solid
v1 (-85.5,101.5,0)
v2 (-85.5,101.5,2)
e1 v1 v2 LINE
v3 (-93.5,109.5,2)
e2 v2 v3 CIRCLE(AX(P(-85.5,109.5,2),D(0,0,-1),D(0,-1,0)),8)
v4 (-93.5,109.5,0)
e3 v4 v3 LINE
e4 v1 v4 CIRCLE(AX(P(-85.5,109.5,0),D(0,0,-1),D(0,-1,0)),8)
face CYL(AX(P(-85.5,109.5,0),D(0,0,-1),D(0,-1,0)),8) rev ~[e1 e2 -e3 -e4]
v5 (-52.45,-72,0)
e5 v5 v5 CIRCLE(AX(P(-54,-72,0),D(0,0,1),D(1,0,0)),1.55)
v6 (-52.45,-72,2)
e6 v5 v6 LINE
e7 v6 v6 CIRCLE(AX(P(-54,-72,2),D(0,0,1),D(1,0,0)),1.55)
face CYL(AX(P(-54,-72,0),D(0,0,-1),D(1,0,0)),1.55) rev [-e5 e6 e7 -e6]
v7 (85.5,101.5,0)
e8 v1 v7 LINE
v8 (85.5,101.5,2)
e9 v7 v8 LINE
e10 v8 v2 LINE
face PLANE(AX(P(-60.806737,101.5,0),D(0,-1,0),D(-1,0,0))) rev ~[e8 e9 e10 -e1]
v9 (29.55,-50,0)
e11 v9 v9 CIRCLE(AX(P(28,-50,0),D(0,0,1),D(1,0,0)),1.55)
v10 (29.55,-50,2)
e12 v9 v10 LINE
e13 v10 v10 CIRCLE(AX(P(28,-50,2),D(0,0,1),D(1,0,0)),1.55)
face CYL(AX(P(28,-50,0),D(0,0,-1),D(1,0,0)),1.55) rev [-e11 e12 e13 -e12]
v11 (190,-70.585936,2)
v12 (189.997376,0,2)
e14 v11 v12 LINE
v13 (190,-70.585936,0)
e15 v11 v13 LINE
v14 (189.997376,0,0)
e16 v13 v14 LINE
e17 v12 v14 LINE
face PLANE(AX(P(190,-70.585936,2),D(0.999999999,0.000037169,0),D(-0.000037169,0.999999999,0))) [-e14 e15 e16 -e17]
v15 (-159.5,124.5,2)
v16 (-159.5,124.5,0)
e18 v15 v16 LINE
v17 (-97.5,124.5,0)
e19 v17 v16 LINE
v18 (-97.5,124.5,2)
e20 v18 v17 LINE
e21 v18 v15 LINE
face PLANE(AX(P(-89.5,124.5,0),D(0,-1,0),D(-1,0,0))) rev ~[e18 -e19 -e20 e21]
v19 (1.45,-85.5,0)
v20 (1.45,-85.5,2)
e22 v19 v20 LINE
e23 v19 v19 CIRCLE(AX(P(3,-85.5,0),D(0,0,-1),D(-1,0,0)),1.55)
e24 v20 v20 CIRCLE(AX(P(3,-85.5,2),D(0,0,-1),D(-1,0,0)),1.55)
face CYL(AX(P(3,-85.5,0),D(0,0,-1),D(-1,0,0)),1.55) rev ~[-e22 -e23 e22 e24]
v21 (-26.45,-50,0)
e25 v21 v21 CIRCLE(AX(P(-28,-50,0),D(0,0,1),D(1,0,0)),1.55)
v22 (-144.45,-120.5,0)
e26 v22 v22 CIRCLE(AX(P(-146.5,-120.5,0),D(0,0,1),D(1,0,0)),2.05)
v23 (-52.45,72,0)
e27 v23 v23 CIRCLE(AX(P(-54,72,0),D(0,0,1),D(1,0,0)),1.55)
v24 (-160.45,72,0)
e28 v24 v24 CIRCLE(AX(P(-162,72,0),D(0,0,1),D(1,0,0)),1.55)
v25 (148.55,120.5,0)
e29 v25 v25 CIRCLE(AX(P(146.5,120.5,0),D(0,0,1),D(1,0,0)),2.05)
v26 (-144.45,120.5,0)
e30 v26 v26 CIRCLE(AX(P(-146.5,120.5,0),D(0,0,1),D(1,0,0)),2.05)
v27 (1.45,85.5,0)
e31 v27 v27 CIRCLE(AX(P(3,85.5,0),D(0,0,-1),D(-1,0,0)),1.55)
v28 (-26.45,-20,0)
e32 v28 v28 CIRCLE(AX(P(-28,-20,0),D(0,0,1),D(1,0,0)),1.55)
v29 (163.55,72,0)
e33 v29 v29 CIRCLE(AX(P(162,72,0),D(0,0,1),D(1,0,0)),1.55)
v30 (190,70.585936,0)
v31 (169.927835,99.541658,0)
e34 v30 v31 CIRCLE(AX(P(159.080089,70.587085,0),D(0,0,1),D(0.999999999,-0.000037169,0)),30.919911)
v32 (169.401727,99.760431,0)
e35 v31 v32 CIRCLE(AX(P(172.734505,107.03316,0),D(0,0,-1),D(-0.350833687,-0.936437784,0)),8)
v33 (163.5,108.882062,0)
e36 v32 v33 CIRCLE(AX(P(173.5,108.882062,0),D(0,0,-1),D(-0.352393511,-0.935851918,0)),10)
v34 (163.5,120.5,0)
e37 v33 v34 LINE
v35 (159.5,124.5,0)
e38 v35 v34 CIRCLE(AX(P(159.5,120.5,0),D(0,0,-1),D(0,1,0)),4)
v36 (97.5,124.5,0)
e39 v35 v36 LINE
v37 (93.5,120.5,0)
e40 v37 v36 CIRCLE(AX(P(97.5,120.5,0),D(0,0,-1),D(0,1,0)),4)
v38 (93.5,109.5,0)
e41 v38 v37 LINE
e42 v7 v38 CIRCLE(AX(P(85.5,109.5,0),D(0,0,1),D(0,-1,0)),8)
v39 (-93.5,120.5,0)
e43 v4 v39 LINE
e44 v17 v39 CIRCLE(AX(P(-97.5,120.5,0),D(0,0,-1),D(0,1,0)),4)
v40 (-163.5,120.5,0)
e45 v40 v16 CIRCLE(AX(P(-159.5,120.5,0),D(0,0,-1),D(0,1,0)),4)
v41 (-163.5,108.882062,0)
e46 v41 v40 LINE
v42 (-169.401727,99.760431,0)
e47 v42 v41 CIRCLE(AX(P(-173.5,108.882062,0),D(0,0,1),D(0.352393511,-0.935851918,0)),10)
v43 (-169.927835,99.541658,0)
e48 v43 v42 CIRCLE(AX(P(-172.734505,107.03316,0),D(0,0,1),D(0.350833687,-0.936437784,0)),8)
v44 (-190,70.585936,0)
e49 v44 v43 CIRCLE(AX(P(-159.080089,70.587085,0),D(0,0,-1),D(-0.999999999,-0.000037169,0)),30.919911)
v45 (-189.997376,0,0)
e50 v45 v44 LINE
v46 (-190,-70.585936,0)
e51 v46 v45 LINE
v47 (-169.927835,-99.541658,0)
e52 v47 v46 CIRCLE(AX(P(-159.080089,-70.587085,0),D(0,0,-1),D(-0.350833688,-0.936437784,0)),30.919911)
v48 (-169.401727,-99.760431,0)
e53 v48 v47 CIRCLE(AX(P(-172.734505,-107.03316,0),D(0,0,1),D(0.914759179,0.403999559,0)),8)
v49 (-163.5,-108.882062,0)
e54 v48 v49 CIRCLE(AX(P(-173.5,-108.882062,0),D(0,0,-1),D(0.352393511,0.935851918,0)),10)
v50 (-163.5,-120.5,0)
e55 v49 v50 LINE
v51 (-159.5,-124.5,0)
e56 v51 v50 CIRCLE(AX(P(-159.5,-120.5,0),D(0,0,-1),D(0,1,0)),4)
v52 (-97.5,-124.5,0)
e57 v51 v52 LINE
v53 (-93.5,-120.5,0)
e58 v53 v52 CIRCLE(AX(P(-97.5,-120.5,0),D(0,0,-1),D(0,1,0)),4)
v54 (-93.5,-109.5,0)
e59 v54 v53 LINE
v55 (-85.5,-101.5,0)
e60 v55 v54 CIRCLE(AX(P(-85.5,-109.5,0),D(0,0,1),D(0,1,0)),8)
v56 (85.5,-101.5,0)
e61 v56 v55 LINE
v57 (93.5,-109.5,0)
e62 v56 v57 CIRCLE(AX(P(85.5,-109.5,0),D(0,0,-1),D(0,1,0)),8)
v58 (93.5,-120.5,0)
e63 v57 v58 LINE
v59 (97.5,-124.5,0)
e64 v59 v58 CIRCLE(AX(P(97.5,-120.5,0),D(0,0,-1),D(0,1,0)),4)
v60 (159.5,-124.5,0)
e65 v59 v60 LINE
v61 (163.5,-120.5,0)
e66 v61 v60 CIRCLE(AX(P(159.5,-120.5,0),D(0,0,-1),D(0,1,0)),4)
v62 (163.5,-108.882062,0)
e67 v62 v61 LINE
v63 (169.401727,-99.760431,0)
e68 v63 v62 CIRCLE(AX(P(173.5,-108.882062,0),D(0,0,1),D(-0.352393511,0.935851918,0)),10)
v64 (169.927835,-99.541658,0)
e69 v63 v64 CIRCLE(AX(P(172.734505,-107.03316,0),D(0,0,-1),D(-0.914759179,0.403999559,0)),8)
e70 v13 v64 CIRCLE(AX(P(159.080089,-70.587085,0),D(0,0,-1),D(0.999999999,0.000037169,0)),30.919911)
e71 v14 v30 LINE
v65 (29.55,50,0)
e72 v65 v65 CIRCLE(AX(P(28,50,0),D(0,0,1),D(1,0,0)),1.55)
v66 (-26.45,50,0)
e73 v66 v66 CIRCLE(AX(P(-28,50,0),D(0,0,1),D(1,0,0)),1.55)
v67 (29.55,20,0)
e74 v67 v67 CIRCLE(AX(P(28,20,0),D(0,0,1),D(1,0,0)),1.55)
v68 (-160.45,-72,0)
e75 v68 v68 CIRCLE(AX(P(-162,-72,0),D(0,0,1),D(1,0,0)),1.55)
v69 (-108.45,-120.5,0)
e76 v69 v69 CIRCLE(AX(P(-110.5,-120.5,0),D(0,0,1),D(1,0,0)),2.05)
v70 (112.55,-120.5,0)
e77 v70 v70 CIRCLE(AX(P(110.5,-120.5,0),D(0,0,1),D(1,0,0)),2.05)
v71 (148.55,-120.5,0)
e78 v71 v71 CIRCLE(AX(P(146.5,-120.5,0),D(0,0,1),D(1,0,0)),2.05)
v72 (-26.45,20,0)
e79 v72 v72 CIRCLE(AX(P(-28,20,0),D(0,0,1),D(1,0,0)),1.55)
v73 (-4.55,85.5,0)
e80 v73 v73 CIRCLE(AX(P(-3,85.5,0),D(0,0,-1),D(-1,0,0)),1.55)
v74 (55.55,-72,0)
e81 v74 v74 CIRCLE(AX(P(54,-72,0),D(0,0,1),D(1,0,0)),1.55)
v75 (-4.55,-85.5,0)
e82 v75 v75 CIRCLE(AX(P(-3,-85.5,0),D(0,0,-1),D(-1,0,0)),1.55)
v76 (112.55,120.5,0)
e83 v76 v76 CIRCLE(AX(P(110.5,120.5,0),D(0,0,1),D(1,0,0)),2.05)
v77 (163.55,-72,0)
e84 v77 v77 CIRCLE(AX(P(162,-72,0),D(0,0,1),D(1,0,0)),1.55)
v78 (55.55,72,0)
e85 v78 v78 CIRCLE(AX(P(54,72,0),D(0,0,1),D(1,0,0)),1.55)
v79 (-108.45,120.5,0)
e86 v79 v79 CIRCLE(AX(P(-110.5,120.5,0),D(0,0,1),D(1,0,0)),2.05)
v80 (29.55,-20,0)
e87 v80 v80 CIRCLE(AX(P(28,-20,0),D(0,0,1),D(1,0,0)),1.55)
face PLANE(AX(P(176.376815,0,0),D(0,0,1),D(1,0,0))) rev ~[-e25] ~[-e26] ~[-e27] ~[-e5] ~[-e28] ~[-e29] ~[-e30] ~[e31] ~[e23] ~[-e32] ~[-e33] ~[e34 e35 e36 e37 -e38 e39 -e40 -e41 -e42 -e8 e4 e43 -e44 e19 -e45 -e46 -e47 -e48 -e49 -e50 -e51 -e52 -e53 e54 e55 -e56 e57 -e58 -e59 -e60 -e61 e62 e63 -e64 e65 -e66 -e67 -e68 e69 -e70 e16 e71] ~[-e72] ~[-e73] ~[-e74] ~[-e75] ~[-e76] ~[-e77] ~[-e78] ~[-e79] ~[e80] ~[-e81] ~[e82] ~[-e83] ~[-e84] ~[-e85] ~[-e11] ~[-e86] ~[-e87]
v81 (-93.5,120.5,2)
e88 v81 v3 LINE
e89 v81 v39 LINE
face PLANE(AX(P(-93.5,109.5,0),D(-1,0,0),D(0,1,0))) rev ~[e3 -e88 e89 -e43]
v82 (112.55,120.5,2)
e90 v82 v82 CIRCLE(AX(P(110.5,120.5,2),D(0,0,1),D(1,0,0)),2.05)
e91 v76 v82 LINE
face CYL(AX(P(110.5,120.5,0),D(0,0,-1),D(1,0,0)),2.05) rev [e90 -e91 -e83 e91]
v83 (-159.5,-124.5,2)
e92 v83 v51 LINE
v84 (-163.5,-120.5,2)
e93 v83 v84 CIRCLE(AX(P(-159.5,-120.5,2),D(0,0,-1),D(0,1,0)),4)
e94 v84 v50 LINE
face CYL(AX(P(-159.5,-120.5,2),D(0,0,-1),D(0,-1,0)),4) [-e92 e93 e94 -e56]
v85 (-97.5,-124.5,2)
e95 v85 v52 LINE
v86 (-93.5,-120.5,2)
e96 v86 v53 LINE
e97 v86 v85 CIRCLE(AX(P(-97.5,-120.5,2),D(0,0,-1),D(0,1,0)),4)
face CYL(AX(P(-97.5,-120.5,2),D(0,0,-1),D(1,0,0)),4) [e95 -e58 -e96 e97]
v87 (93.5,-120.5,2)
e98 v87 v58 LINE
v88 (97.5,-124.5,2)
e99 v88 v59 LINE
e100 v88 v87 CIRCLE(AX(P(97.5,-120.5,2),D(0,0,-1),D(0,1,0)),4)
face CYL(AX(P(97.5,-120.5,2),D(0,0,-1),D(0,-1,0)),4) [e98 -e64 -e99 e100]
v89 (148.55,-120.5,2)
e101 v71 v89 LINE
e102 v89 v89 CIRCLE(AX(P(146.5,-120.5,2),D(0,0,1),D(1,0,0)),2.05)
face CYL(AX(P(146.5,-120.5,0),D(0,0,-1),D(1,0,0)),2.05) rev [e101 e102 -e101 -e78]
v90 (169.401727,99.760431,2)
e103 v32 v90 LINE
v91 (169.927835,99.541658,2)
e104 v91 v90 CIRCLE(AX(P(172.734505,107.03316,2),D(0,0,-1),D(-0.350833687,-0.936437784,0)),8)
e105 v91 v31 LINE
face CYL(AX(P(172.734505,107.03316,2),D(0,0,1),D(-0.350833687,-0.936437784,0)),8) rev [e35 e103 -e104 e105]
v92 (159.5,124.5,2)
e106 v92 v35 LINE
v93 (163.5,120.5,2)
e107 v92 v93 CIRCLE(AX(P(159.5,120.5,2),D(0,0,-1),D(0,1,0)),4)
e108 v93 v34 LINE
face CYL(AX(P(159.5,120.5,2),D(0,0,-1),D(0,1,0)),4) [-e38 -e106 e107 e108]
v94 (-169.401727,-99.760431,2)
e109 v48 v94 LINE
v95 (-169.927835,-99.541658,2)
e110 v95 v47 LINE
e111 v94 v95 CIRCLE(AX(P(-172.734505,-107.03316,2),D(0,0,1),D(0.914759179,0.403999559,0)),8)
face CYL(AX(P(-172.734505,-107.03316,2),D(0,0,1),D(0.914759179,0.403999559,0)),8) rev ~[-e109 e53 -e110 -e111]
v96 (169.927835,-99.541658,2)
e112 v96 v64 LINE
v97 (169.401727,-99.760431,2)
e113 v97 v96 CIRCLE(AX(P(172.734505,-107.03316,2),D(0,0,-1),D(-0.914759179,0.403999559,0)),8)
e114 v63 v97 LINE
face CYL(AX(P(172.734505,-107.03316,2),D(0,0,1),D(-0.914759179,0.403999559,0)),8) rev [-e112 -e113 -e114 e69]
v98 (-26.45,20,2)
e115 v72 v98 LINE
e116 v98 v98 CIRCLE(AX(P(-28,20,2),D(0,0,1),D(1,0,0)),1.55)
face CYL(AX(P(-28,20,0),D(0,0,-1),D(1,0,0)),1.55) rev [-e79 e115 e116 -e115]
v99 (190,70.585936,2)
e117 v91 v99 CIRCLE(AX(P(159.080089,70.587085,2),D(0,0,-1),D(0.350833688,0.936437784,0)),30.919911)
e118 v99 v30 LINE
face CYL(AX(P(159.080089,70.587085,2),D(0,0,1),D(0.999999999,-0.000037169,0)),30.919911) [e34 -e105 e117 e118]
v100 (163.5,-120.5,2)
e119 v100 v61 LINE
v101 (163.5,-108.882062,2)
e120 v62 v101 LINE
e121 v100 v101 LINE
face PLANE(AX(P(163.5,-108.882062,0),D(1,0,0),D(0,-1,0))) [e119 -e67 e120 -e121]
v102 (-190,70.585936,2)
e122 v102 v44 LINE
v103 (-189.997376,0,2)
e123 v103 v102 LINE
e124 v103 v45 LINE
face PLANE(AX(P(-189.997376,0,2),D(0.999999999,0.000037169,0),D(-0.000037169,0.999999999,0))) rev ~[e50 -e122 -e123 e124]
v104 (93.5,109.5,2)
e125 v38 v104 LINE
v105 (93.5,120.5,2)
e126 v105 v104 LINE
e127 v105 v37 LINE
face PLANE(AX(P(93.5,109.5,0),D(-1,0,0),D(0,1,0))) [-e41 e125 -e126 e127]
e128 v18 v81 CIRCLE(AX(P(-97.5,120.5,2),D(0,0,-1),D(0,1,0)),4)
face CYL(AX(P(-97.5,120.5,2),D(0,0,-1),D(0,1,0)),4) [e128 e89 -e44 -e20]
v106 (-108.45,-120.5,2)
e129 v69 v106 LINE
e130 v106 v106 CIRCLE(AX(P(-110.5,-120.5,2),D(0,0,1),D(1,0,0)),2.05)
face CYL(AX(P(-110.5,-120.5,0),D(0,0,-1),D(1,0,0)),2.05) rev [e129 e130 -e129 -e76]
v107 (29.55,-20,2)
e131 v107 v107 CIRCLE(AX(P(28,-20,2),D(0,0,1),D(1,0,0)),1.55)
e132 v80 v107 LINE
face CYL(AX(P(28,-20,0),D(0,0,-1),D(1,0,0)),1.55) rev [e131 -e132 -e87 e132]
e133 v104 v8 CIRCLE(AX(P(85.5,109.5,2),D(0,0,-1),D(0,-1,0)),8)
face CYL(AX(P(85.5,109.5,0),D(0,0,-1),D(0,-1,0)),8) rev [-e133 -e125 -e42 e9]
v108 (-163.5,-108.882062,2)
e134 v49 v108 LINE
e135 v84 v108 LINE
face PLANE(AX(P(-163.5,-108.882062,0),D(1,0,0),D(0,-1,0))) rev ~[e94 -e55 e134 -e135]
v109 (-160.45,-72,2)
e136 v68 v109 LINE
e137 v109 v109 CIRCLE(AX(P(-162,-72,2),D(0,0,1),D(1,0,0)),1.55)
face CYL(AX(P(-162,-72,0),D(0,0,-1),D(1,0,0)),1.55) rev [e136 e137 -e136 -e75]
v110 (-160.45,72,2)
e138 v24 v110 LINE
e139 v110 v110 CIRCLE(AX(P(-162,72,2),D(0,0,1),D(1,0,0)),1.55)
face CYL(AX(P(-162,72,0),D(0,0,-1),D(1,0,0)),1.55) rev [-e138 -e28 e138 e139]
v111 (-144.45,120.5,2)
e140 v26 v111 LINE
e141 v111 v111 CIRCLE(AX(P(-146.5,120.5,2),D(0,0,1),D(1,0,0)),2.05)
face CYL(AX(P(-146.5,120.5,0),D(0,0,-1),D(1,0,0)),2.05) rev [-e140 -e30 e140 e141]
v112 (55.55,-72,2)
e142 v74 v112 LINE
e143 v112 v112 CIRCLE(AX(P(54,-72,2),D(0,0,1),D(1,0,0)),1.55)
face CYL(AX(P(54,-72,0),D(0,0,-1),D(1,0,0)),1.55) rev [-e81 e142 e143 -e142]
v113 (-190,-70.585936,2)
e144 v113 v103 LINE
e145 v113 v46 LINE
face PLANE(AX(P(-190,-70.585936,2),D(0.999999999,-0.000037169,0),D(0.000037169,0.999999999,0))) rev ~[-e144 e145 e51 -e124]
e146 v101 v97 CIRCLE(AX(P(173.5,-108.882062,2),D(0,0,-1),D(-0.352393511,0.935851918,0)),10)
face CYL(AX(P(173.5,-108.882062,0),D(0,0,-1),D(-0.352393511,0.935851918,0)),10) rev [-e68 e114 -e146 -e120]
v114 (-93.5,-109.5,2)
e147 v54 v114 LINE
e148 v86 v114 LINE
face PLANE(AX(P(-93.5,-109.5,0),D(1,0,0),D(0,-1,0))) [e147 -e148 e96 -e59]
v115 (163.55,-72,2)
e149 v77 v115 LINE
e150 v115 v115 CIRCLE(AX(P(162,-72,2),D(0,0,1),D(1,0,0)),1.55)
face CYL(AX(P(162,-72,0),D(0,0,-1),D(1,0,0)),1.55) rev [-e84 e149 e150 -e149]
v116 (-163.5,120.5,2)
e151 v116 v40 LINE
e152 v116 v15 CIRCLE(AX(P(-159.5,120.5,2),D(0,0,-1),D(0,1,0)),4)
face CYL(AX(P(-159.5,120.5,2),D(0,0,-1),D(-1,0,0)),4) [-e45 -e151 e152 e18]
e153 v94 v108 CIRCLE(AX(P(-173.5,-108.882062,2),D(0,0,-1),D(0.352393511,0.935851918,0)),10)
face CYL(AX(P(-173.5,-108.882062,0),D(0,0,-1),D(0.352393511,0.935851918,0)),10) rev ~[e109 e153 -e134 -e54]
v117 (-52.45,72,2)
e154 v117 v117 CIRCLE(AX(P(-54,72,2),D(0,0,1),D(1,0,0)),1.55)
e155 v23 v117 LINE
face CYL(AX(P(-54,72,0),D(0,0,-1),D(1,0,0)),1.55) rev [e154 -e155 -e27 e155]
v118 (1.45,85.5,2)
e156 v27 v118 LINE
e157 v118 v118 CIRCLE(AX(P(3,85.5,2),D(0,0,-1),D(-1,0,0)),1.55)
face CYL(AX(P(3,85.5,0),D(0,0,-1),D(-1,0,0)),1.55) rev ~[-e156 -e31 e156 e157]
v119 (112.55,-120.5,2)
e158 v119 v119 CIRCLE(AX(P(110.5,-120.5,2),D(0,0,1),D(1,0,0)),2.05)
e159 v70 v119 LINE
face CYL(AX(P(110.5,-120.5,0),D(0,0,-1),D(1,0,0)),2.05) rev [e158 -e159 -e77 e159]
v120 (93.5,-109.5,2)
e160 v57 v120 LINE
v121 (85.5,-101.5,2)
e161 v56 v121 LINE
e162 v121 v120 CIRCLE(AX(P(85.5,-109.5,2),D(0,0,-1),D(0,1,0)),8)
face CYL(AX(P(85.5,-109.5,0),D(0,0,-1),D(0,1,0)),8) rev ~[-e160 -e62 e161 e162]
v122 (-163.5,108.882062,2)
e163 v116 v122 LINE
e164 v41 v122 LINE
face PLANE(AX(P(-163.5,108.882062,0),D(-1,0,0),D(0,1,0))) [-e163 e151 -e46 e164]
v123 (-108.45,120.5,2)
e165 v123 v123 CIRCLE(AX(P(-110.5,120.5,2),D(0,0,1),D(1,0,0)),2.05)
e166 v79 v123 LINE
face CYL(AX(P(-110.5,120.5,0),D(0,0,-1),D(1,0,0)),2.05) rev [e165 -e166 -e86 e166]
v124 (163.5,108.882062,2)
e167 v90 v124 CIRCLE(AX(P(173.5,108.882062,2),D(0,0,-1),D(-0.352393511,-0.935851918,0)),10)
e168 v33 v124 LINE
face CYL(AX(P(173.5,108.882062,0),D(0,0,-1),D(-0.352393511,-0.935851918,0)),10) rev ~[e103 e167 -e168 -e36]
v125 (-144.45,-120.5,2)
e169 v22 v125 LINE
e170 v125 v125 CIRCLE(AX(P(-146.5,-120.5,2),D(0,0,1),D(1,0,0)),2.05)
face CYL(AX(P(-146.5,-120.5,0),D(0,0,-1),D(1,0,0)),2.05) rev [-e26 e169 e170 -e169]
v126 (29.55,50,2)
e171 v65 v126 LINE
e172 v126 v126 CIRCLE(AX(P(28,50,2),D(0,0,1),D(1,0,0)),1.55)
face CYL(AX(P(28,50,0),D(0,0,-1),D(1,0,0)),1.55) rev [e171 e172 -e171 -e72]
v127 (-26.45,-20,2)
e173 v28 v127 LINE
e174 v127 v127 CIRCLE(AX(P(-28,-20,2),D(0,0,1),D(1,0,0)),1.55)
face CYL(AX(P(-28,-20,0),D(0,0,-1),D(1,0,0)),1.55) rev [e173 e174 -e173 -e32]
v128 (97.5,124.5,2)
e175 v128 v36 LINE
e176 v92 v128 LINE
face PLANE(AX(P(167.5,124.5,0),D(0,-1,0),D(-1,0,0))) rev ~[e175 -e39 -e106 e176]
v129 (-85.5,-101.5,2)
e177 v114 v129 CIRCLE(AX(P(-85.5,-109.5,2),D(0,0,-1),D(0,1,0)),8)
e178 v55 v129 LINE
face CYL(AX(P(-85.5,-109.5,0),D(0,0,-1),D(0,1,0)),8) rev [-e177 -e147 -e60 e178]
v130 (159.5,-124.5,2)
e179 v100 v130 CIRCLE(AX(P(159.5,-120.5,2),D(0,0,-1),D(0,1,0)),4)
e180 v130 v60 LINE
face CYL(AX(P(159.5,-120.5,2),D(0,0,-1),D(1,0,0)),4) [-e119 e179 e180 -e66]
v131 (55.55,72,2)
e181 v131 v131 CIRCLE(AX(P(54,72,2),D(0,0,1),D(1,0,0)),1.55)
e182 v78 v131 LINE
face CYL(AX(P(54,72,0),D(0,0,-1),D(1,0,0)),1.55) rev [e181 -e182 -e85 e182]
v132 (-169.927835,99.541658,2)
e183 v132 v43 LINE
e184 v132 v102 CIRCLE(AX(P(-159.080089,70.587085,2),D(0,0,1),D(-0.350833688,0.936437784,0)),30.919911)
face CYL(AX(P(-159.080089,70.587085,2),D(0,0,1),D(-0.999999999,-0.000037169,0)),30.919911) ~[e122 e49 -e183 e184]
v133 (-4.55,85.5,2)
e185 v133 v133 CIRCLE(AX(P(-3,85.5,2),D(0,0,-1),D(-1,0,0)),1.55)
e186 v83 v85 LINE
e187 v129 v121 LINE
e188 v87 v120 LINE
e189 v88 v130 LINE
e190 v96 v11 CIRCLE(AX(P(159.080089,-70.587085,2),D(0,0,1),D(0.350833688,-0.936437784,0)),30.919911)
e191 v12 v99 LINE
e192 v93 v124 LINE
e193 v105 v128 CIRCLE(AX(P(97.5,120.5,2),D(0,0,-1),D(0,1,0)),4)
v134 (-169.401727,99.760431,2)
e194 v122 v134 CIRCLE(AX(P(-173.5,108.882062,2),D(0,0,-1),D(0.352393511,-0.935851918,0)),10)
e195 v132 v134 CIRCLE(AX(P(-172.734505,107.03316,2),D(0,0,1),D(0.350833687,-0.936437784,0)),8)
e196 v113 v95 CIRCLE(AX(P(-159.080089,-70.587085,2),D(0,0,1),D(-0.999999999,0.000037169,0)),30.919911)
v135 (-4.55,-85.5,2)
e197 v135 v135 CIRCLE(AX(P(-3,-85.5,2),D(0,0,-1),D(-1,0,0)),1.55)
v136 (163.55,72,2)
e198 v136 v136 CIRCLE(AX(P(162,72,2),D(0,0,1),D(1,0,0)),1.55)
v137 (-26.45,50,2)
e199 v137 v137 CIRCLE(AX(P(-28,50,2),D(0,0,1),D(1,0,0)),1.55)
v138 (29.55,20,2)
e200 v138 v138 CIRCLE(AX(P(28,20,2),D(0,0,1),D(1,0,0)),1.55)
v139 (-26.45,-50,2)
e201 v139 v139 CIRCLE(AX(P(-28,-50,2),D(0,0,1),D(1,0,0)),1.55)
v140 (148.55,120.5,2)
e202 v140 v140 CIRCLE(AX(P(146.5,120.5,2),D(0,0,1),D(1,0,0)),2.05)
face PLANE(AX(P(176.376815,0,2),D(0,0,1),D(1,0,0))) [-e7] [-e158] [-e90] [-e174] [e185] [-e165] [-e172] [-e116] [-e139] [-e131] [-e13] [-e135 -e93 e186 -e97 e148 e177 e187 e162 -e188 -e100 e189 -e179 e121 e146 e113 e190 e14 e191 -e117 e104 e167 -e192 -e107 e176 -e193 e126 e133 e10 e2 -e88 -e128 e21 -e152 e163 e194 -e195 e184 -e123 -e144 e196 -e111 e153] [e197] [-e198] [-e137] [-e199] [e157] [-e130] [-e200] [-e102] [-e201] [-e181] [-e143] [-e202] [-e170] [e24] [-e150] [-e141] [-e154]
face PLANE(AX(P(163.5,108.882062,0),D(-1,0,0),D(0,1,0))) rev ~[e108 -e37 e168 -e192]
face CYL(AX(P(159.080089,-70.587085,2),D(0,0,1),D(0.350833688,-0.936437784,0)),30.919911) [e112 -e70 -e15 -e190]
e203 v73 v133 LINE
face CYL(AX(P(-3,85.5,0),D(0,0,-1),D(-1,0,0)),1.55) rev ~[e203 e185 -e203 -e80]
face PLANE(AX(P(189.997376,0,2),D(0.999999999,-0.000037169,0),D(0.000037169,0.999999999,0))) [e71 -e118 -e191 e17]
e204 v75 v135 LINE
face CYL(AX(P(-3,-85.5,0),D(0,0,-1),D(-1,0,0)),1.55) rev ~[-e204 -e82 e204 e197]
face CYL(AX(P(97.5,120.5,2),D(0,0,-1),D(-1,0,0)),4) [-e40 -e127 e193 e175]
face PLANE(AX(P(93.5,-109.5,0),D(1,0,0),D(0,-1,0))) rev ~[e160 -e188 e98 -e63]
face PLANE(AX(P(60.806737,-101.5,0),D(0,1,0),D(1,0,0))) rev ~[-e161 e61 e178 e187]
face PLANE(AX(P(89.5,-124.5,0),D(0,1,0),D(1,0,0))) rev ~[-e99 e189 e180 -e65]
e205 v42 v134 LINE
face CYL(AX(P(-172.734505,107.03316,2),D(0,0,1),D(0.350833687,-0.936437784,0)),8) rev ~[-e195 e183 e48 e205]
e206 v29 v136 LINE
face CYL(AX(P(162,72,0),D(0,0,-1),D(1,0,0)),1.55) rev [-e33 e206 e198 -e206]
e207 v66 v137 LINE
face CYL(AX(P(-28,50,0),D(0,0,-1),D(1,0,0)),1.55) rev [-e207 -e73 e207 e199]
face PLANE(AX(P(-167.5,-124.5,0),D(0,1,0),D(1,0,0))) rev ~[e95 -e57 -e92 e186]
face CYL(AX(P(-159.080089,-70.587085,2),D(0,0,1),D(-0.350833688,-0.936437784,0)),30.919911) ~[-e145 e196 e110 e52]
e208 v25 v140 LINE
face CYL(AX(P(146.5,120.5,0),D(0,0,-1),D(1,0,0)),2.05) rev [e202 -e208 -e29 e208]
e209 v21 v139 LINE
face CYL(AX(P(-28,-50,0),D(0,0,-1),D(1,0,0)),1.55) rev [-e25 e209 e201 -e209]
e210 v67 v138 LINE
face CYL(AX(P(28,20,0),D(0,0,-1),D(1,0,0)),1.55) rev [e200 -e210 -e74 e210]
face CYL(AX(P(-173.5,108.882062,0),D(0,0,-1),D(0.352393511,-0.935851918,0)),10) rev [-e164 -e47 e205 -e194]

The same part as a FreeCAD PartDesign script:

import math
import FreeCAD as App
import Part
import Sketcher
from FreeCAD import Vector


def edges_at(feature, points):
    """Names of the edges that pass closest to the given points."""
    edges = feature.Shape.Edges
    near = lambda p: min(range(len(edges)), key=lambda i: edges[i].distToShape(Part.Vertex(*p))[0])
    return sorted({f"Edge{near(p) + 1}" for p in points})

doc = App.newDocument("Part")
body = doc.addObject("PartDesign::Body", "Body")

# Sketch on XY plane
sketch1 = body.newObject("Sketcher::SketchObject", "Sketch")
sketch1.AttachmentSupport = (doc.getObject("XY_Plane"), [""])
sketch1.MapMode = "FlatFace"
sketch1.addGeometry([
    Part.LineSegment(Vector(-89.5, -124.5, 0), Vector(-89.5, -101.5, 0)),  # 0
    Part.LineSegment(Vector(-89.5, -101.5, 0), Vector(89.5, -101.5, 0)),  # 1
    Part.LineSegment(Vector(89.5, -101.5, 0), Vector(89.5, -124.5, 0)),  # 2
    Part.LineSegment(Vector(89.5, -124.5, 0), Vector(167.5, -124.5, 0)),  # 3
    Part.LineSegment(Vector(167.5, -124.5, 0), Vector(167.5, 124.5, 0)),  # 4
    Part.LineSegment(Vector(167.5, 124.5, 0), Vector(89.5, 124.5, 0)),  # 5
    Part.LineSegment(Vector(89.5, 124.5, 0), Vector(89.5, 101.5, 0)),  # 6
    Part.LineSegment(Vector(89.5, 101.5, 0), Vector(-89.5, 101.5, 0)),  # 7
    Part.LineSegment(Vector(-89.5, 101.5, 0), Vector(-89.5, 124.5, 0)),  # 8
    Part.LineSegment(Vector(-89.5, 124.5, 0), Vector(-167.5, 124.5, 0)),  # 9
    Part.LineSegment(Vector(-167.5, 124.5, 0), Vector(-167.5, -124.5, 0)),  # 10
    Part.LineSegment(Vector(-167.5, -124.5, 0), Vector(-89.5, -124.5, 0)),  # 11
    Part.Circle(Vector(-146.5, -120.5, 0), Vector(0, 0, 1), 2),  # 12
    Part.Circle(Vector(-110.5, -120.5, 0), Vector(0, 0, 1), 2),  # 13
    Part.Circle(Vector(-162, -72, 0), Vector(0, 0, 1), 1.6),  # 14
    Part.Circle(Vector(-54, -72, 0), Vector(0, 0, 1), 1.6),  # 15
    Part.Circle(Vector(-28, -50, 0), Vector(0, 0, 1), 1.6),  # 16
    Part.Circle(Vector(-28, -20, 0), Vector(0, 0, 1), 1.6),  # 17
    Part.Circle(Vector(54, -72, 0), Vector(0, 0, 1), 1.6),  # 18
    Part.Circle(Vector(110.5, -120.5, 0), Vector(0, 0, 1), 2),  # 19
    Part.Circle(Vector(146.5, -120.5, 0), Vector(0, 0, 1), 2),  # 20
    Part.Circle(Vector(162, -72, 0), Vector(0, 0, 1), 1.6),  # 21
    Part.Circle(Vector(28, -50, 0), Vector(0, 0, 1), 1.6),  # 22
    Part.Circle(Vector(28, -20, 0), Vector(0, 0, 1), 1.6),  # 23
    Part.Circle(Vector(-28, 20, 0), Vector(0, 0, 1), 1.6),  # 24
    Part.Circle(Vector(-28, 50, 0), Vector(0, 0, 1), 1.6),  # 25
    Part.Circle(Vector(-162, 72, 0), Vector(0, 0, 1), 1.6),  # 26
    Part.Circle(Vector(-146.5, 120.5, 0), Vector(0, 0, 1), 2),  # 27
    Part.Circle(Vector(-110.5, 120.5, 0), Vector(0, 0, 1), 2),  # 28
    Part.Circle(Vector(-54, 72, 0), Vector(0, 0, 1), 1.6),  # 29
    Part.Circle(Vector(28, 20, 0), Vector(0, 0, 1), 1.6),  # 30
    Part.Circle(Vector(28, 50, 0), Vector(0, 0, 1), 1.6),  # 31
    Part.Circle(Vector(54, 72, 0), Vector(0, 0, 1), 1.6),  # 32
    Part.Circle(Vector(162, 72, 0), Vector(0, 0, 1), 1.6),  # 33
    Part.Circle(Vector(110.5, 120.5, 0), Vector(0, 0, 1), 2),  # 34
    Part.Circle(Vector(146.5, 120.5, 0), Vector(0, 0, 1), 2),  # 35
], False)
sketch1.addConstraint([
    Sketcher.Constraint("Coincident", 0, 2, 1, 1),
    Sketcher.Constraint("Coincident", 1, 2, 2, 1),
    Sketcher.Constraint("Coincident", 2, 2, 3, 1),
    Sketcher.Constraint("Coincident", 3, 2, 4, 1),
    Sketcher.Constraint("Coincident", 4, 2, 5, 1),
    Sketcher.Constraint("Coincident", 5, 2, 6, 1),
    Sketcher.Constraint("Coincident", 6, 2, 7, 1),
    Sketcher.Constraint("Coincident", 7, 2, 8, 1),
    Sketcher.Constraint("Coincident", 8, 2, 9, 1),
    Sketcher.Constraint("Coincident", 9, 2, 10, 1),
    Sketcher.Constraint("Coincident", 10, 2, 11, 1),
    Sketcher.Constraint("Coincident", 11, 2, 0, 1),
    Sketcher.Constraint("Vertical", 0),
    Sketcher.Constraint("Horizontal", 1),
    Sketcher.Constraint("Vertical", 2),
    Sketcher.Constraint("Horizontal", 3),
    Sketcher.Constraint("Vertical", 4),
    Sketcher.Constraint("Horizontal", 5),
    Sketcher.Constraint("Vertical", 6),
    Sketcher.Constraint("Horizontal", 7),
    Sketcher.Constraint("Vertical", 8),
    Sketcher.Constraint("Horizontal", 9),
    Sketcher.Constraint("Vertical", 10),
    Sketcher.Constraint("Horizontal", 11),
    Sketcher.Constraint("Equal", 12, 13),
    Sketcher.Constraint("Equal", 14, 15),
    Sketcher.Constraint("Equal", 15, 16),
    Sketcher.Constraint("Equal", 16, 17),
    Sketcher.Constraint("Equal", 17, 18),
    Sketcher.Constraint("Equal", 13, 19),
    Sketcher.Constraint("Equal", 19, 20),
    Sketcher.Constraint("Equal", 18, 21),
    Sketcher.Constraint("Equal", 21, 22),
    Sketcher.Constraint("Equal", 22, 23),
    Sketcher.Constraint("Equal", 23, 24),
    Sketcher.Constraint("Equal", 24, 25),
    Sketcher.Constraint("Equal", 25, 26),
    Sketcher.Constraint("Equal", 20, 27),
    Sketcher.Constraint("Equal", 27, 28),
    Sketcher.Constraint("Equal", 26, 29),
    Sketcher.Constraint("Equal", 29, 30),
    Sketcher.Constraint("Equal", 30, 31),
    Sketcher.Constraint("Equal", 31, 32),
    Sketcher.Constraint("Equal", 32, 33),
    Sketcher.Constraint("Equal", 28, 34),
    Sketcher.Constraint("Equal", 34, 35),
    Sketcher.Constraint("Symmetric", 23, 3, 24, 3, -1, 1),
    Sketcher.Constraint("Symmetric", 22, 3, 25, 3, -1, 1),
    Sketcher.Constraint("Symmetric", 21, 3, 26, 3, -1, 1),
    Sketcher.Constraint("Symmetric", 20, 3, 27, 3, -1, 1),
    Sketcher.Constraint("Symmetric", 19, 3, 28, 3, -1, 1),
    Sketcher.Constraint("Symmetric", 18, 3, 29, 3, -1, 1),
    Sketcher.Constraint("Symmetric", 17, 3, 30, 3, -1, 1),
    Sketcher.Constraint("Symmetric", 16, 3, 31, 3, -1, 1),
    Sketcher.Constraint("Symmetric", 15, 3, 32, 3, -1, 1),
    Sketcher.Constraint("Symmetric", 14, 3, 33, 3, -1, 1),
    Sketcher.Constraint("Symmetric", 13, 3, 34, 3, -1, 1),
    Sketcher.Constraint("Symmetric", 12, 3, 35, 3, -1, 1),
    Sketcher.Constraint("Symmetric", 0, 2, 6, 2, -1, 1),
    Sketcher.Constraint("Symmetric", 2, 2, 8, 2, -1, 1),
    Sketcher.Constraint("Symmetric", 4, 2, 10, 2, -1, 1),
    Sketcher.Constraint("Symmetric", 15, 3, 18, 3, -2),
    Sketcher.Constraint("Symmetric", 13, 3, 19, 3, -2),
    Sketcher.Constraint("Symmetric", 12, 3, 20, 3, -2),
    Sketcher.Constraint("Symmetric", 14, 3, 21, 3, -2),
    Sketcher.Constraint("Symmetric", 16, 3, 22, 3, -2),
    Sketcher.Constraint("Symmetric", 17, 3, 23, 3, -2),
    Sketcher.Constraint("Symmetric", 5, 2, 8, 2, -2),
    Sketcher.Constraint("Horizontal", 12, 3, 13, 3),
    Sketcher.Constraint("Horizontal", 14, 3, 15, 3),
    Sketcher.Constraint("Vertical", 16, 3, 17, 3),
    Sketcher.Constraint("Diameter", 12, 4.1),
    Sketcher.Constraint("Diameter", 14, 3.1),
    Sketcher.Constraint("DistanceX", 1, 1, 1, 2, 179.0),
    Sketcher.Constraint("DistanceX", 3, 1, 3, 2, 78.0),
    Sketcher.Constraint("DistanceY", 0, 1, 0, 2, 23.0),
    Sketcher.Constraint("DistanceY", 4, 1, 4, 2, 249.0),
    Sketcher.Constraint("DistanceX", 14, 3, -1, 1, 162.0),
    Sketcher.Constraint("DistanceY", 14, 3, -1, 1, 72.0),
    Sketcher.Constraint("DistanceX", 15, 3, -1, 1, 54.0),
    Sketcher.Constraint("DistanceX", 16, 3, -1, 1, 28.0),
    Sketcher.Constraint("DistanceY", 16, 3, -1, 1, 50.0),
    Sketcher.Constraint("DistanceY", 17, 3, -1, 1, 20.0),
    Sketcher.Constraint("DistanceX", 12, 3, 13, 3, 36.0),
    Sketcher.Constraint("DistanceX", 13, 3, 19, 3, 221.0),
    Sketcher.Constraint("DistanceY", 13, 3, 0, 2, 19.0),
])
pad1 = body.newObject("PartDesign::Pad", "Pad")
pad1.Profile = sketch1
pad1.Length = 2
doc.recompute()

fillet = body.newObject("PartDesign::Fillet", "Fillet")
fillet.Base = (pad1, edges_at(pad1, [
    (-89.5, 101.5, 1),
    (89.5, 101.5, 1),
    (89.5, -101.5, 1),
    (-89.5, -101.5, 1),
]))
fillet.Radius = 10
doc.recompute()

fillet2 = body.newObject("PartDesign::Fillet", "Fillet001")
fillet2.Base = (fillet, edges_at(fillet, [
    (89.5, 124.5, 1),
    (167.5, 124.5, 1),
    (167.5, -124.5, 1),
    (89.5, -124.5, 1),
    (-89.5, -124.5, 1),
    (-167.5, -124.5, 1),
    (-167.5, 124.5, 1),
    (-89.5, 124.5, 1),
]))
fillet2.Radius = 3

# Sketch on XY plane
sketch2 = body.newObject("Sketcher::SketchObject", "Sketch001")
sketch2.AttachmentSupport = (doc.getObject("XY_Plane"), [""])
sketch2.MapMode = "FlatFace"
sketch2.AttachmentOffset = App.Placement(Vector(0, 0, 2), App.Rotation())
sketch2.addGeometry([
    Part.LineSegment(Vector(190, 0, 0), Vector(190, 71, 0)),  # 0
    Part.ArcOfCircle(Part.Circle(Vector(159, 71, 0), Vector(0, 0, 1), 31), math.radians(0), math.radians(69)),  # 1
    Part.ArcOfCircle(Part.Circle(Vector(173, 107, 0), Vector(0, 0, 1), 8), math.radians(-156), math.radians(-111)),  # 2
    Part.LineSegment(Vector(165, 104, 0), Vector(165, 0, 0)),  # 3
    Part.LineSegment(Vector(165, 0, 0), Vector(165, -104, 0)),  # 4
    Part.ArcOfCircle(Part.Circle(Vector(173, -107, 0), Vector(0, 0, 1), 8), math.radians(111), math.radians(156)),  # 5
    Part.ArcOfCircle(Part.Circle(Vector(159, -71, 0), Vector(0, 0, 1), 31), math.radians(-69), math.radians(0)),  # 6
    Part.LineSegment(Vector(190, -71, 0), Vector(190, 0, 0)),  # 7
    Part.LineSegment(Vector(-165, 0, 0), Vector(-165, 104, 0)),  # 8
    Part.ArcOfCircle(Part.Circle(Vector(-173, 107, 0), Vector(0, 0, 1), 8), math.radians(-69), math.radians(-24)),  # 9
    Part.ArcOfCircle(Part.Circle(Vector(-159, 71, 0), Vector(0, 0, 1), 31), math.radians(111), math.radians(180)),  # 10
    Part.LineSegment(Vector(-190, 71, 0), Vector(-190, 0, 0)),  # 11
    Part.LineSegment(Vector(-190, 0, 0), Vector(-190, -71, 0)),  # 12
    Part.ArcOfCircle(Part.Circle(Vector(-159, -71, 0), Vector(0, 0, 1), 31), math.radians(180), math.radians(249)),  # 13
    Part.ArcOfCircle(Part.Circle(Vector(-173, -107, 0), Vector(0, 0, 1), 8), math.radians(24), math.radians(69)),  # 14
    Part.LineSegment(Vector(-165, -104, 0), Vector(-165, 0, 0)),  # 15
], False)
sketch2.addConstraint([
    Sketcher.Constraint("Tangent", 0, 2, 1, 1),
    Sketcher.Constraint("Tangent", 1, 2, 2, 2),
    Sketcher.Constraint("Coincident", 2, 1, 3, 1),
    Sketcher.Constraint("Coincident", 3, 2, 4, 1),
    Sketcher.Constraint("Coincident", 4, 2, 5, 2),
    Sketcher.Constraint("Tangent", 5, 1, 6, 1),
    Sketcher.Constraint("Tangent", 6, 2, 7, 1),
    Sketcher.Constraint("Coincident", 7, 2, 0, 1),
    Sketcher.Constraint("Coincident", 8, 2, 9, 2),
    Sketcher.Constraint("Tangent", 9, 1, 10, 1),
    Sketcher.Constraint("Tangent", 10, 2, 11, 1),
    Sketcher.Constraint("Coincident", 11, 2, 12, 1),
    Sketcher.Constraint("Tangent", 12, 2, 13, 1),
    Sketcher.Constraint("Tangent", 13, 2, 14, 2),
    Sketcher.Constraint("Coincident", 14, 1, 15, 1),
    Sketcher.Constraint("Coincident", 15, 2, 8, 1),
    Sketcher.Constraint("Equal", 2, 5),
    Sketcher.Constraint("Equal", 1, 6),
    Sketcher.Constraint("Equal", 5, 9),
    Sketcher.Constraint("Equal", 6, 10),
    Sketcher.Constraint("Equal", 10, 13),
    Sketcher.Constraint("Equal", 9, 14),
    Sketcher.Constraint("Symmetric", 5, 3, 9, 3, -1, 1),
    Sketcher.Constraint("Symmetric", 1, 3, 13, 3, -1, 1),
    Sketcher.Constraint("Symmetric", 6, 2, 10, 2, -1, 1),
    Sketcher.Constraint("Symmetric", 2, 1, 14, 1, -1, 1),
    Sketcher.Constraint("Symmetric", 3, 2, 15, 2, -1, 1),
    Sketcher.Constraint("Symmetric", 2, 3, 9, 3, -2),
    Sketcher.Constraint("PointOnObject", 3, 2, -1),
    Sketcher.Constraint("PointOnObject", 7, 2, -1),
    Sketcher.Constraint("PointOnObject", 11, 2, -1),
    Sketcher.Constraint("Parallel", 3, 4),
    Sketcher.Constraint("Parallel", 4, 8),
    Sketcher.Constraint("Horizontal", 1, 3, 10, 3),
    Sketcher.Constraint("Horizontal", 2, 1, 8, 2),
    Sketcher.Constraint("Radius", 2, 8.0),
    Sketcher.Constraint("DistanceX", -1, 1, 0, 2, 190.0),
    Sketcher.Constraint("Radius", 1, 30.919911),
    Sketcher.Constraint("DistanceY", 4, 2, 0, 2, 174.387099),
    Sketcher.Constraint("DistanceY", -1, 1, 2, 3, 107.03316),
    Sketcher.Constraint("DistanceX", -1, 1, 2, 1, 165.416431),
    Sketcher.Constraint("DistanceY", 6, 3, 1, 3, 141.17417),
])
pad2 = body.newObject("PartDesign::Pad", "Pad001")
pad2.Profile = sketch2
pad2.Length = 2
pad2.Reversed = True

# Sketch on XY plane
sketch3 = body.newObject("Sketcher::SketchObject", "Sketch002")
sketch3.AttachmentSupport = (doc.getObject("XY_Plane"), [""])
sketch3.MapMode = "FlatFace"
sketch3.addGeometry([
    Part.LineSegment(Vector(164, 109, 0), Vector(164, 125, 0)),  # 0
    Part.LineSegment(Vector(164, 125, 0), Vector(195, 125, 0)),  # 1
    Part.LineSegment(Vector(195, 125, 0), Vector(190, 71, 0)),  # 2
    Part.ArcOfCircle(Part.Circle(Vector(159, 71, 0), Vector(0, 0, 1), 31), math.radians(0), math.radians(69)),  # 3
    Part.ArcOfCircle(Part.Circle(Vector(174, 109, 0), Vector(0, 0, 1), 10), math.radians(-180), math.radians(-111)),  # 4
    Part.LineSegment(Vector(86, 102, 0), Vector(61, 102, 0)),  # 5
    Part.LineSegment(Vector(61, 102, 0), Vector(61, 125, 0)),  # 6
    Part.LineSegment(Vector(61, 125, 0), Vector(94, 125, 0)),  # 7
    Part.LineSegment(Vector(94, 125, 0), Vector(94, 110, 0)),  # 8
    Part.ArcOfCircle(Part.Circle(Vector(85, 110, 0), Vector(0, 0, 1), 8), math.radians(-90), math.radians(0)),  # 9
    Part.LineSegment(Vector(-61, 125, 0), Vector(-61, 102, 0)),  # 10
    Part.LineSegment(Vector(-61, 102, 0), Vector(-86, 102, 0)),  # 11
    Part.ArcOfCircle(Part.Circle(Vector(-85, 110, 0), Vector(0, 0, 1), 8), math.radians(-180), math.radians(-90)),  # 12
    Part.LineSegment(Vector(-94, 110, 0), Vector(-94, 125, 0)),  # 13
    Part.LineSegment(Vector(-94, 125, 0), Vector(-61, 125, 0)),  # 14
    Part.LineSegment(Vector(-190, 71, 0), Vector(-195, 125, 0)),  # 15
    Part.LineSegment(Vector(-195, 125, 0), Vector(-164, 125, 0)),  # 16
    Part.LineSegment(Vector(-164, 125, 0), Vector(-164, 109, 0)),  # 17
    Part.ArcOfCircle(Part.Circle(Vector(-174, 109, 0), Vector(0, 0, 1), 10), math.radians(-69), math.radians(0)),  # 18
    Part.ArcOfCircle(Part.Circle(Vector(-159, 71, 0), Vector(0, 0, 1), 31), math.radians(111), math.radians(180)),  # 19
    Part.LineSegment(Vector(-164, -109, 0), Vector(-164, -125, 0)),  # 20
    Part.LineSegment(Vector(-164, -125, 0), Vector(-195, -125, 0)),  # 21
    Part.LineSegment(Vector(-195, -125, 0), Vector(-190, -71, 0)),  # 22
    Part.ArcOfCircle(Part.Circle(Vector(-159, -71, 0), Vector(0, 0, 1), 31), math.radians(180), math.radians(249)),  # 23
    Part.ArcOfCircle(Part.Circle(Vector(-174, -109, 0), Vector(0, 0, 1), 10), math.radians(0), math.radians(69)),  # 24
    Part.LineSegment(Vector(-86, -102, 0), Vector(-61, -102, 0)),  # 25
    Part.LineSegment(Vector(-61, -102, 0), Vector(-61, -125, 0)),  # 26
    Part.LineSegment(Vector(-61, -125, 0), Vector(-94, -125, 0)),  # 27
    Part.LineSegment(Vector(-94, -125, 0), Vector(-94, -110, 0)),  # 28
    Part.ArcOfCircle(Part.Circle(Vector(-85, -110, 0), Vector(0, 0, 1), 8), math.radians(90), math.radians(180)),  # 29
    Part.LineSegment(Vector(61, -125, 0), Vector(61, -102, 0)),  # 30
    Part.LineSegment(Vector(61, -102, 0), Vector(86, -102, 0)),  # 31
    Part.ArcOfCircle(Part.Circle(Vector(85, -110, 0), Vector(0, 0, 1), 8), math.radians(0), math.radians(90)),  # 32
    Part.LineSegment(Vector(94, -110, 0), Vector(94, -125, 0)),  # 33
    Part.LineSegment(Vector(94, -125, 0), Vector(61, -125, 0)),  # 34
    Part.LineSegment(Vector(190, -71, 0), Vector(195, -125, 0)),  # 35
    Part.LineSegment(Vector(195, -125, 0), Vector(164, -125, 0)),  # 36
    Part.LineSegment(Vector(164, -125, 0), Vector(164, -109, 0)),  # 37
    Part.ArcOfCircle(Part.Circle(Vector(174, -109, 0), Vector(0, 0, 1), 10), math.radians(111), math.radians(180)),  # 38
    Part.ArcOfCircle(Part.Circle(Vector(159, -71, 0), Vector(0, 0, 1), 31), math.radians(-69), math.radians(0)),  # 39
], False)
sketch3.addConstraint([
    Sketcher.Constraint("Coincident", 0, 2, 1, 1),
    Sketcher.Constraint("Coincident", 1, 2, 2, 1),
    Sketcher.Constraint("Coincident", 2, 2, 3, 1),
    Sketcher.Constraint("Tangent", 3, 2, 4, 2),
    Sketcher.Constraint("Tangent", 4, 1, 0, 1),
    Sketcher.Constraint("Coincident", 5, 2, 6, 1),
    Sketcher.Constraint("Coincident", 6, 2, 7, 1),
    Sketcher.Constraint("Coincident", 7, 2, 8, 1),
    Sketcher.Constraint("Tangent", 8, 2, 9, 2),
    Sketcher.Constraint("Tangent", 9, 1, 5, 1),
    Sketcher.Constraint("Coincident", 10, 2, 11, 1),
    Sketcher.Constraint("Tangent", 11, 2, 12, 2),
    Sketcher.Constraint("Tangent", 12, 1, 13, 1),
    Sketcher.Constraint("Coincident", 13, 2, 14, 1),
    Sketcher.Constraint("Coincident", 14, 2, 10, 1),
    Sketcher.Constraint("Coincident", 15, 2, 16, 1),
    Sketcher.Constraint("Coincident", 16, 2, 17, 1),
    Sketcher.Constraint("Tangent", 17, 2, 18, 2),
    Sketcher.Constraint("Tangent", 18, 1, 19, 1),
    Sketcher.Constraint("Coincident", 19, 2, 15, 1),
    Sketcher.Constraint("Coincident", 20, 2, 21, 1),
    Sketcher.Constraint("Coincident", 21, 2, 22, 1),
    Sketcher.Constraint("Coincident", 22, 2, 23, 1),
    Sketcher.Constraint("Tangent", 23, 2, 24, 2),
    Sketcher.Constraint("Tangent", 24, 1, 20, 1),
    Sketcher.Constraint("Coincident", 25, 2, 26, 1),
    Sketcher.Constraint("Coincident", 26, 2, 27, 1),
    Sketcher.Constraint("Coincident", 27, 2, 28, 1),
    Sketcher.Constraint("Tangent", 28, 2, 29, 2),
    Sketcher.Constraint("Tangent", 29, 1, 25, 1),
    Sketcher.Constraint("Coincident", 30, 2, 31, 1),
    Sketcher.Constraint("Tangent", 31, 2, 32, 2),
    Sketcher.Constraint("Tangent", 32, 1, 33, 1),
    Sketcher.Constraint("Coincident", 33, 2, 34, 1),
    Sketcher.Constraint("Coincident", 34, 2, 30, 1),
    Sketcher.Constraint("Coincident", 35, 2, 36, 1),
    Sketcher.Constraint("Coincident", 36, 2, 37, 1),
    Sketcher.Constraint("Tangent", 37, 2, 38, 2),
    Sketcher.Constraint("Tangent", 38, 1, 39, 1),
    Sketcher.Constraint("Coincident", 39, 2, 35, 1),
    Sketcher.Constraint("Vertical", 0),
    Sketcher.Constraint("Horizontal", 1),
    Sketcher.Constraint("Horizontal", 5),
    Sketcher.Constraint("Vertical", 6),
    Sketcher.Constraint("Horizontal", 7),
    Sketcher.Constraint("Vertical", 8),
    Sketcher.Constraint("Vertical", 10),
    Sketcher.Constraint("Horizontal", 11),
    Sketcher.Constraint("Vertical", 13),
    Sketcher.Constraint("Horizontal", 14),
    Sketcher.Constraint("Horizontal", 16),
    Sketcher.Constraint("Vertical", 17),
    Sketcher.Constraint("Vertical", 20),
    Sketcher.Constraint("Horizontal", 21),
    Sketcher.Constraint("Horizontal", 25),
    Sketcher.Constraint("Vertical", 26),
    Sketcher.Constraint("Horizontal", 27),
    Sketcher.Constraint("Vertical", 28),
    Sketcher.Constraint("Vertical", 30),
    Sketcher.Constraint("Horizontal", 31),
    Sketcher.Constraint("Vertical", 33),
    Sketcher.Constraint("Horizontal", 34),
    Sketcher.Constraint("Horizontal", 36),
    Sketcher.Constraint("Vertical", 37),
    Sketcher.Constraint("Equal", 9, 12),
    Sketcher.Constraint("Equal", 4, 18),
    Sketcher.Constraint("Equal", 3, 19),
    Sketcher.Constraint("Equal", 19, 23),
    Sketcher.Constraint("Equal", 18, 24),
    Sketcher.Constraint("Equal", 12, 29),
    Sketcher.Constraint("Equal", 29, 32),
    Sketcher.Constraint("Equal", 24, 38),
    Sketcher.Constraint("Equal", 23, 39),
    Sketcher.Constraint("Symmetric", 3, 3, 23, 3, -1, 1),
    Sketcher.Constraint("Symmetric", 9, 3, 29, 3, -1, 1),
    Sketcher.Constraint("Symmetric", 12, 3, 32, 3, -1, 1),
    Sketcher.Constraint("Symmetric", 18, 3, 38, 3, -1, 1),
    Sketcher.Constraint("Symmetric", 0, 2, 20, 2, -1, 1),
    Sketcher.Constraint("Symmetric", 6, 2, 26, 2, -1, 1),
    Sketcher.Constraint("Symmetric", 14, 2, 34, 2, -1, 1),
    Sketcher.Constraint("Symmetric", 15, 2, 35, 2, -1, 1),
    Sketcher.Constraint("Symmetric", 19, 2, 39, 2, -1, 1),
    Sketcher.Constraint("Symmetric", 9, 3, 12, 3, -2),
    Sketcher.Constraint("Symmetric", 4, 3, 18, 3, -2),
    Sketcher.Constraint("Symmetric", 6, 2, 14, 2, -2),
    Sketcher.Constraint("Symmetric", 1, 2, 15, 2, -2),
    Sketcher.Constraint("Symmetric", 2, 2, 19, 2, -2),
    Sketcher.Constraint("Parallel", 2, 22),
    Sketcher.Constraint("Horizontal", 1, 2, 6, 2),
    Sketcher.Constraint("Horizontal", 22, 2, 39, 2),
    Sketcher.Constraint("Radius", 4, 10.0),
    Sketcher.Constraint("Radius", 9, 8.0),
    Sketcher.Constraint("DistanceX", -1, 1, 2, 2, 190.0),
    Sketcher.Constraint("DistanceX", 9, 3, 4, 3, 88.0),
    Sketcher.Constraint("DistanceX", 12, 3, 9, 3, 171.0),
    Sketcher.Constraint("DistanceY", 29, 3, 12, 3, 219.0),
    Sketcher.Constraint("Radius", 3, 30.919911),
    Sketcher.Constraint("Distance", 2, 54.817301),
    Sketcher.Constraint("DistanceY", 0, 1, 0, 2, 16.24557),
    Sketcher.Constraint("DistanceX", 1, 1, 1, 2, 31.989977),
    Sketcher.Constraint("DistanceX", 5, 2, 5, 1, 24.693263),
    Sketcher.Constraint("DistanceY", 6, 1, 6, 2, 23.627632),
])
pocket1 = body.newObject("PartDesign::Pocket", "Pocket")
pocket1.Profile = sketch3
pocket1.Length = 10
pocket1.Reversed = True
doc.recompute()

fillet3 = body.newObject("PartDesign::Fillet", "Fillet002")
fillet3.Base = (pocket1, edges_at(pocket1, [
    (93.5, 124.5, 1),
    (-93.5, 124.5, 1),
    (-163.5, 124.5, 1),
    (-163.5, -124.5, 1),
    (-93.5, -124.5, 1),
    (93.5, -124.5, 1),
    (163.5, -124.5, 1),
    (163.5, 124.5, 1),
]))
fillet3.Radius = 4

# Sketch on XY plane
sketch4 = body.newObject("Sketcher::SketchObject", "Sketch003")
sketch4.AttachmentSupport = (doc.getObject("XY_Plane"), [""])
sketch4.MapMode = "FlatFace"
sketch4.addGeometry([
    Part.Circle(Vector(-3, 85.5, 0), Vector(0, 0, 1), 1.6),
    Part.Circle(Vector(3, 85.5, 0), Vector(0, 0, 1), 1.6),
    Part.Circle(Vector(3, -85.5, 0), Vector(0, 0, 1), 1.6),
    Part.Circle(Vector(-3, -85.5, 0), Vector(0, 0, 1), 1.6),
], False)
sketch4.addConstraint([
    Sketcher.Constraint("Equal", 0, 1),
    Sketcher.Constraint("Equal", 1, 2),
    Sketcher.Constraint("Equal", 2, 3),
    Sketcher.Constraint("Symmetric", 0, 3, 2, 3, -1, 1),
    Sketcher.Constraint("Symmetric", 1, 3, 3, 3, -1, 1),
    Sketcher.Constraint("Symmetric", 0, 3, 1, 3, -2),
    Sketcher.Constraint("Diameter", 0, 3.1),
    Sketcher.Constraint("DistanceX", 0, 3, -1, 1, 3.0),
    Sketcher.Constraint("DistanceY", 2, 3, 1, 3, 171.0),
])
pocket2 = body.newObject("PartDesign::Pocket", "Pocket001")
pocket2.Profile = sketch4
pocket2.Length = 10
pocket2.Reversed = True

doc.recompute()
